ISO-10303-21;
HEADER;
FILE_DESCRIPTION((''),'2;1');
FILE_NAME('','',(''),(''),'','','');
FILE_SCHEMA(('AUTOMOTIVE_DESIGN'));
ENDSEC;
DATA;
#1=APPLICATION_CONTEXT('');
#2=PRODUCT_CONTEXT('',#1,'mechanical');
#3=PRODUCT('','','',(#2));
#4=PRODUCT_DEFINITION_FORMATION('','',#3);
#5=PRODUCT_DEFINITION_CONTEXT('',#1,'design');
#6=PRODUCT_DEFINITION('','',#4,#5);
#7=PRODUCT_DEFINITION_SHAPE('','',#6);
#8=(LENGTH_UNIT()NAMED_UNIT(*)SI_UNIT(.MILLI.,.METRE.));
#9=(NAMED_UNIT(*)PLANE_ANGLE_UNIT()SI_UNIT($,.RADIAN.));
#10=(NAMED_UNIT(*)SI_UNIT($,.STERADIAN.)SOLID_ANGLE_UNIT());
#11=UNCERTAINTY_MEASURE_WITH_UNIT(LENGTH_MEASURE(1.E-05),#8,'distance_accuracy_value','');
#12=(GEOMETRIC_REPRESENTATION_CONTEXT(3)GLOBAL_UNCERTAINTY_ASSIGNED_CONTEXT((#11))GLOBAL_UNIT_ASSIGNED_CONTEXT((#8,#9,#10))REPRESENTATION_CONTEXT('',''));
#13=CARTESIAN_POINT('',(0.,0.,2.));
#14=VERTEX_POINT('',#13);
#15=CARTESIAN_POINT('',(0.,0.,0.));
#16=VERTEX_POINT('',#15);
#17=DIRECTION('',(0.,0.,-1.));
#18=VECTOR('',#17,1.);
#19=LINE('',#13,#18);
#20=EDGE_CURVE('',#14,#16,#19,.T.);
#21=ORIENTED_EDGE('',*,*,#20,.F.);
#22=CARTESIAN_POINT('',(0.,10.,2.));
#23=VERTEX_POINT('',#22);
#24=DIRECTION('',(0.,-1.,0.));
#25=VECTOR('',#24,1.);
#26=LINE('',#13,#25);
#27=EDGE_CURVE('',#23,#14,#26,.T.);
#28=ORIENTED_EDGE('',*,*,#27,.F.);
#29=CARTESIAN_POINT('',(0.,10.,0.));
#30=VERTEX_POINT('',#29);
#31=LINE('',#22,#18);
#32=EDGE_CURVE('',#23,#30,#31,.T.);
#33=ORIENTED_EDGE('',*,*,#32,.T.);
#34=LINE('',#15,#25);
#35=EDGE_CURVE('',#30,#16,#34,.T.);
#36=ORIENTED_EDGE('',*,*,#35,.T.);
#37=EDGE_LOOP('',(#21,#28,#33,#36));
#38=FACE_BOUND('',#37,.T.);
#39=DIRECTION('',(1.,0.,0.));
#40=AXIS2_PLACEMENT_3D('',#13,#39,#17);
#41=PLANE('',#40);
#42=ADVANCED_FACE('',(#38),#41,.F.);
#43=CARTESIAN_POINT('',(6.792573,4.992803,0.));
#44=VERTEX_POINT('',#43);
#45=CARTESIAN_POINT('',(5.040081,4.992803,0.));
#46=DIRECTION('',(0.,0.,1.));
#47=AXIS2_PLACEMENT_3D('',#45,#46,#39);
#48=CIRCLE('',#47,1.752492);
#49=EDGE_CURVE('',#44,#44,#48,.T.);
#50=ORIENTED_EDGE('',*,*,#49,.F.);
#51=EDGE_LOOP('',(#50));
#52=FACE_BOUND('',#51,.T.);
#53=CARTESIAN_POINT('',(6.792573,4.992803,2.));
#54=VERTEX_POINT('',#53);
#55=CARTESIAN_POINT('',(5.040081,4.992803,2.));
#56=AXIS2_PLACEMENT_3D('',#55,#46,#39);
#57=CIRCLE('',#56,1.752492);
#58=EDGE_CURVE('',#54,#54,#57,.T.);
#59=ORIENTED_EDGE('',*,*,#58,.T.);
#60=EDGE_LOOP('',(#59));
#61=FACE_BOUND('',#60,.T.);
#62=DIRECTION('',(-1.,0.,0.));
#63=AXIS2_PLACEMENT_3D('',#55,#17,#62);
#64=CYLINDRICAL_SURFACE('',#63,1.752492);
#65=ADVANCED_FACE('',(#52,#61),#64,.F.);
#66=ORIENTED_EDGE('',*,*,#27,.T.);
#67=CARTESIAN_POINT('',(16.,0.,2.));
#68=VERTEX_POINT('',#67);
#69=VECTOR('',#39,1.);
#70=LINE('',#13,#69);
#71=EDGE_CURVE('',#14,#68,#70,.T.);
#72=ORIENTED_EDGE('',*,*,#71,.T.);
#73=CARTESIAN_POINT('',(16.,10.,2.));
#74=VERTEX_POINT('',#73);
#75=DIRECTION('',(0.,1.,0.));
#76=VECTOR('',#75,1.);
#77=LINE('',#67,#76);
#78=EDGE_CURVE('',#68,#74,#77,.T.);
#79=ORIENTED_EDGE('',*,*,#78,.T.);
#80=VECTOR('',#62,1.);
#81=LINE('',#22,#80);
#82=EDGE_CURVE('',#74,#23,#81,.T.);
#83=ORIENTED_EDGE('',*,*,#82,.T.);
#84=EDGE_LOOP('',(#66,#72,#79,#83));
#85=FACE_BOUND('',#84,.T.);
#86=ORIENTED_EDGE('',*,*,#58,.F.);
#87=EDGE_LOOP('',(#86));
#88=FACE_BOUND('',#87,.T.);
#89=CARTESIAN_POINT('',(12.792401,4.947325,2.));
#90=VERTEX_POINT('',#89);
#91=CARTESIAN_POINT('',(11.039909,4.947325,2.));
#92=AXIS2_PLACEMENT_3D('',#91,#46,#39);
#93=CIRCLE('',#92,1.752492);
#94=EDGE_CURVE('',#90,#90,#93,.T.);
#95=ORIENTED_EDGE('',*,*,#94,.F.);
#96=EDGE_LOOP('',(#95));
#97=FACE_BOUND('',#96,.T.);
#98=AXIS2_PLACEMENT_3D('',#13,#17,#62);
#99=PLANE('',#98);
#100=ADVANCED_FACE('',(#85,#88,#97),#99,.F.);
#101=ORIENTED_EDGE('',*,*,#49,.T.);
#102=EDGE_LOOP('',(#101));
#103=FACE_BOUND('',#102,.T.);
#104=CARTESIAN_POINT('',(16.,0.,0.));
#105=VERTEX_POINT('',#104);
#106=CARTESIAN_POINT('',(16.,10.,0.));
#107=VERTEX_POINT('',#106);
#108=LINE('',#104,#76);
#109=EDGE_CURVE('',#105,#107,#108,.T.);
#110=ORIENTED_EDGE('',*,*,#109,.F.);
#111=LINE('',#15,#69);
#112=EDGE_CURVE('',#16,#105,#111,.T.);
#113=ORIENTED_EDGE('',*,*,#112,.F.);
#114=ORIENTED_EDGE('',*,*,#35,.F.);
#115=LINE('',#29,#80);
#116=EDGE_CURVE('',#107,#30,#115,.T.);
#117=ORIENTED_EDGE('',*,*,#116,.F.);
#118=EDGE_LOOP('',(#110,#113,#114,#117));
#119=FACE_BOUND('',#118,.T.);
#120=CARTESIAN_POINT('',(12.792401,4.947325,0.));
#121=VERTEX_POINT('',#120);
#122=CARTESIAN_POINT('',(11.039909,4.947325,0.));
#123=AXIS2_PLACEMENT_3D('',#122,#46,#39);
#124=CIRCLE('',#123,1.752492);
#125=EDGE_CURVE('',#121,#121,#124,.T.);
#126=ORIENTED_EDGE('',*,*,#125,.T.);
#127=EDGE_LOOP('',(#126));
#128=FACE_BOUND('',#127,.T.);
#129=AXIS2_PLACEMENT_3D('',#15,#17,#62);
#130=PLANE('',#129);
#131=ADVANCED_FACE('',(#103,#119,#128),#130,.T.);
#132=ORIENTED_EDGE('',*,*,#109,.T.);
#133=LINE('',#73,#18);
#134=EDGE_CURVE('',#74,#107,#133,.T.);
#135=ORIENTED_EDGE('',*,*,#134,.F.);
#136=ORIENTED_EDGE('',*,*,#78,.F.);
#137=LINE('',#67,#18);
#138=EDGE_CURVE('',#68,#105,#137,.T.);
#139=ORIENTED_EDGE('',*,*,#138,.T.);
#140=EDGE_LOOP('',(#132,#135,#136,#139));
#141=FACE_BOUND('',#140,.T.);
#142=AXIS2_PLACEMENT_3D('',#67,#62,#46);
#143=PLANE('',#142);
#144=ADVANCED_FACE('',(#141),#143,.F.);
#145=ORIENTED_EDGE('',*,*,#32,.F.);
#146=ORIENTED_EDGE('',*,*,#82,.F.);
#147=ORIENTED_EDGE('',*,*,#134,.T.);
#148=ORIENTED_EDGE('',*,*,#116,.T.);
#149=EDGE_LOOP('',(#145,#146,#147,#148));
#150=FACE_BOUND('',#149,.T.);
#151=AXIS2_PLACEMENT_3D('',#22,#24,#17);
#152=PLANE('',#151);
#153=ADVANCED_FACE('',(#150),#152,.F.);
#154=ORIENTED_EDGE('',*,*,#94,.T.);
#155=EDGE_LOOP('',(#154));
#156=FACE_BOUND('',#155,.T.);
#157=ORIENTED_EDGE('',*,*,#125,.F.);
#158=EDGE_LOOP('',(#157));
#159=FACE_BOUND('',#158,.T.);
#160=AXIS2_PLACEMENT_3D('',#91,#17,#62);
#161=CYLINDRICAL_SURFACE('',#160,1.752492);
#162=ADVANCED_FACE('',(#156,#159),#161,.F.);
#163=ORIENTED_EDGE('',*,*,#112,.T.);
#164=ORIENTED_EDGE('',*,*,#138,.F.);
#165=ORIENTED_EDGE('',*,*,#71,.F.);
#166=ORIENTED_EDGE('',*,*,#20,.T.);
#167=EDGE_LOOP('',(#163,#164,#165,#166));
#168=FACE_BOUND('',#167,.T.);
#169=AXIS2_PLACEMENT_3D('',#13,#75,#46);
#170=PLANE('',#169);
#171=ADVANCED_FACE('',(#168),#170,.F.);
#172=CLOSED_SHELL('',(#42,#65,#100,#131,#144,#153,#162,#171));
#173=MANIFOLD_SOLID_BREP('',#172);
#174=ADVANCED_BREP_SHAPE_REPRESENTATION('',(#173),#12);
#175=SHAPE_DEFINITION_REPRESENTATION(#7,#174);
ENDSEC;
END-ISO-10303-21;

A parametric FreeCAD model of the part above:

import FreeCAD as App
import Part
import Sketcher
from FreeCAD import Vector
Q = App.Units.Quantity


def add_polygon(sketch, points):
    """Adds a closed chain of lines whose ends are joined by coincident constraints."""
    first, n = sketch.GeometryCount, len(points)
    for a, b in zip(points, points[1:] + points[:1]):
        sketch.addGeometry(Part.LineSegment(App.Vector(*a, 0), App.Vector(*b, 0)), False)
    for i in range(n):
        sketch.addConstraint(Sketcher.Constraint("Coincident", first + i, 2, first + (i + 1) % n, 1))

doc = App.newDocument("Part")
body = doc.addObject("PartDesign::Body", "Body")

# Sketch on XY plane
sketch1 = doc.addObject("Sketcher::SketchObject", "Sketch")
body.addObject(sketch1)
sketch1.AttachmentSupport = (doc.XY_Plane, [""])
sketch1.MapMode = "FlatFace"
add_polygon(sketch1, [(0, 10), (0, 0), (16, 0), (16, 10)])  # lines 0-3
sketch1.addGeometry(Part.Circle(Vector(11.039909, 4.947325, 0), Vector(0, 0, 1), 1.752492), False)  # 4
sketch1.addGeometry(Part.Circle(Vector(5.040081, 4.992803, 0), Vector(0, 0, 1), 1.752492), False)  # 5
sketch1.addConstraint(Sketcher.Constraint("Vertical", 0))
sketch1.addConstraint(Sketcher.Constraint("Horizontal", 1))
sketch1.addConstraint(Sketcher.Constraint("Vertical", 2))
sketch1.addConstraint(Sketcher.Constraint("Horizontal", 3))
sketch1.addConstraint(Sketcher.Constraint("Coincident", 0, 2, -1, 1))
sketch1.addConstraint(Sketcher.Constraint("Equal", 4, 5))
sketch1.addConstraint(Sketcher.Constraint("DistanceX", 1, 1, 1, 2, Q("16 mm")))
sketch1.addConstraint(Sketcher.Constraint("DistanceY", 0, 2, 0, 1, Q("10 mm")))
sketch1.addConstraint(Sketcher.Constraint("Diameter", 4, Q("3.504983 mm")))
sketch1.addConstraint(Sketcher.Constraint("DistanceX", -1, 1, 4, 3, Q("11.039909 mm")))
sketch1.addConstraint(Sketcher.Constraint("DistanceX", -1, 1, 5, 3, Q("5.040081 mm")))
sketch1.addConstraint(Sketcher.Constraint("DistanceY", -1, 1, 4, 3, Q("4.947325 mm")))
sketch1.addConstraint(Sketcher.Constraint("DistanceY", -1, 1, 5, 3, Q("4.992803 mm")))
pad1 = doc.addObject("PartDesign::Pad", "Pad")
body.addObject(pad1)
pad1.Profile = sketch1
pad1.Length = 2

doc.recompute()
